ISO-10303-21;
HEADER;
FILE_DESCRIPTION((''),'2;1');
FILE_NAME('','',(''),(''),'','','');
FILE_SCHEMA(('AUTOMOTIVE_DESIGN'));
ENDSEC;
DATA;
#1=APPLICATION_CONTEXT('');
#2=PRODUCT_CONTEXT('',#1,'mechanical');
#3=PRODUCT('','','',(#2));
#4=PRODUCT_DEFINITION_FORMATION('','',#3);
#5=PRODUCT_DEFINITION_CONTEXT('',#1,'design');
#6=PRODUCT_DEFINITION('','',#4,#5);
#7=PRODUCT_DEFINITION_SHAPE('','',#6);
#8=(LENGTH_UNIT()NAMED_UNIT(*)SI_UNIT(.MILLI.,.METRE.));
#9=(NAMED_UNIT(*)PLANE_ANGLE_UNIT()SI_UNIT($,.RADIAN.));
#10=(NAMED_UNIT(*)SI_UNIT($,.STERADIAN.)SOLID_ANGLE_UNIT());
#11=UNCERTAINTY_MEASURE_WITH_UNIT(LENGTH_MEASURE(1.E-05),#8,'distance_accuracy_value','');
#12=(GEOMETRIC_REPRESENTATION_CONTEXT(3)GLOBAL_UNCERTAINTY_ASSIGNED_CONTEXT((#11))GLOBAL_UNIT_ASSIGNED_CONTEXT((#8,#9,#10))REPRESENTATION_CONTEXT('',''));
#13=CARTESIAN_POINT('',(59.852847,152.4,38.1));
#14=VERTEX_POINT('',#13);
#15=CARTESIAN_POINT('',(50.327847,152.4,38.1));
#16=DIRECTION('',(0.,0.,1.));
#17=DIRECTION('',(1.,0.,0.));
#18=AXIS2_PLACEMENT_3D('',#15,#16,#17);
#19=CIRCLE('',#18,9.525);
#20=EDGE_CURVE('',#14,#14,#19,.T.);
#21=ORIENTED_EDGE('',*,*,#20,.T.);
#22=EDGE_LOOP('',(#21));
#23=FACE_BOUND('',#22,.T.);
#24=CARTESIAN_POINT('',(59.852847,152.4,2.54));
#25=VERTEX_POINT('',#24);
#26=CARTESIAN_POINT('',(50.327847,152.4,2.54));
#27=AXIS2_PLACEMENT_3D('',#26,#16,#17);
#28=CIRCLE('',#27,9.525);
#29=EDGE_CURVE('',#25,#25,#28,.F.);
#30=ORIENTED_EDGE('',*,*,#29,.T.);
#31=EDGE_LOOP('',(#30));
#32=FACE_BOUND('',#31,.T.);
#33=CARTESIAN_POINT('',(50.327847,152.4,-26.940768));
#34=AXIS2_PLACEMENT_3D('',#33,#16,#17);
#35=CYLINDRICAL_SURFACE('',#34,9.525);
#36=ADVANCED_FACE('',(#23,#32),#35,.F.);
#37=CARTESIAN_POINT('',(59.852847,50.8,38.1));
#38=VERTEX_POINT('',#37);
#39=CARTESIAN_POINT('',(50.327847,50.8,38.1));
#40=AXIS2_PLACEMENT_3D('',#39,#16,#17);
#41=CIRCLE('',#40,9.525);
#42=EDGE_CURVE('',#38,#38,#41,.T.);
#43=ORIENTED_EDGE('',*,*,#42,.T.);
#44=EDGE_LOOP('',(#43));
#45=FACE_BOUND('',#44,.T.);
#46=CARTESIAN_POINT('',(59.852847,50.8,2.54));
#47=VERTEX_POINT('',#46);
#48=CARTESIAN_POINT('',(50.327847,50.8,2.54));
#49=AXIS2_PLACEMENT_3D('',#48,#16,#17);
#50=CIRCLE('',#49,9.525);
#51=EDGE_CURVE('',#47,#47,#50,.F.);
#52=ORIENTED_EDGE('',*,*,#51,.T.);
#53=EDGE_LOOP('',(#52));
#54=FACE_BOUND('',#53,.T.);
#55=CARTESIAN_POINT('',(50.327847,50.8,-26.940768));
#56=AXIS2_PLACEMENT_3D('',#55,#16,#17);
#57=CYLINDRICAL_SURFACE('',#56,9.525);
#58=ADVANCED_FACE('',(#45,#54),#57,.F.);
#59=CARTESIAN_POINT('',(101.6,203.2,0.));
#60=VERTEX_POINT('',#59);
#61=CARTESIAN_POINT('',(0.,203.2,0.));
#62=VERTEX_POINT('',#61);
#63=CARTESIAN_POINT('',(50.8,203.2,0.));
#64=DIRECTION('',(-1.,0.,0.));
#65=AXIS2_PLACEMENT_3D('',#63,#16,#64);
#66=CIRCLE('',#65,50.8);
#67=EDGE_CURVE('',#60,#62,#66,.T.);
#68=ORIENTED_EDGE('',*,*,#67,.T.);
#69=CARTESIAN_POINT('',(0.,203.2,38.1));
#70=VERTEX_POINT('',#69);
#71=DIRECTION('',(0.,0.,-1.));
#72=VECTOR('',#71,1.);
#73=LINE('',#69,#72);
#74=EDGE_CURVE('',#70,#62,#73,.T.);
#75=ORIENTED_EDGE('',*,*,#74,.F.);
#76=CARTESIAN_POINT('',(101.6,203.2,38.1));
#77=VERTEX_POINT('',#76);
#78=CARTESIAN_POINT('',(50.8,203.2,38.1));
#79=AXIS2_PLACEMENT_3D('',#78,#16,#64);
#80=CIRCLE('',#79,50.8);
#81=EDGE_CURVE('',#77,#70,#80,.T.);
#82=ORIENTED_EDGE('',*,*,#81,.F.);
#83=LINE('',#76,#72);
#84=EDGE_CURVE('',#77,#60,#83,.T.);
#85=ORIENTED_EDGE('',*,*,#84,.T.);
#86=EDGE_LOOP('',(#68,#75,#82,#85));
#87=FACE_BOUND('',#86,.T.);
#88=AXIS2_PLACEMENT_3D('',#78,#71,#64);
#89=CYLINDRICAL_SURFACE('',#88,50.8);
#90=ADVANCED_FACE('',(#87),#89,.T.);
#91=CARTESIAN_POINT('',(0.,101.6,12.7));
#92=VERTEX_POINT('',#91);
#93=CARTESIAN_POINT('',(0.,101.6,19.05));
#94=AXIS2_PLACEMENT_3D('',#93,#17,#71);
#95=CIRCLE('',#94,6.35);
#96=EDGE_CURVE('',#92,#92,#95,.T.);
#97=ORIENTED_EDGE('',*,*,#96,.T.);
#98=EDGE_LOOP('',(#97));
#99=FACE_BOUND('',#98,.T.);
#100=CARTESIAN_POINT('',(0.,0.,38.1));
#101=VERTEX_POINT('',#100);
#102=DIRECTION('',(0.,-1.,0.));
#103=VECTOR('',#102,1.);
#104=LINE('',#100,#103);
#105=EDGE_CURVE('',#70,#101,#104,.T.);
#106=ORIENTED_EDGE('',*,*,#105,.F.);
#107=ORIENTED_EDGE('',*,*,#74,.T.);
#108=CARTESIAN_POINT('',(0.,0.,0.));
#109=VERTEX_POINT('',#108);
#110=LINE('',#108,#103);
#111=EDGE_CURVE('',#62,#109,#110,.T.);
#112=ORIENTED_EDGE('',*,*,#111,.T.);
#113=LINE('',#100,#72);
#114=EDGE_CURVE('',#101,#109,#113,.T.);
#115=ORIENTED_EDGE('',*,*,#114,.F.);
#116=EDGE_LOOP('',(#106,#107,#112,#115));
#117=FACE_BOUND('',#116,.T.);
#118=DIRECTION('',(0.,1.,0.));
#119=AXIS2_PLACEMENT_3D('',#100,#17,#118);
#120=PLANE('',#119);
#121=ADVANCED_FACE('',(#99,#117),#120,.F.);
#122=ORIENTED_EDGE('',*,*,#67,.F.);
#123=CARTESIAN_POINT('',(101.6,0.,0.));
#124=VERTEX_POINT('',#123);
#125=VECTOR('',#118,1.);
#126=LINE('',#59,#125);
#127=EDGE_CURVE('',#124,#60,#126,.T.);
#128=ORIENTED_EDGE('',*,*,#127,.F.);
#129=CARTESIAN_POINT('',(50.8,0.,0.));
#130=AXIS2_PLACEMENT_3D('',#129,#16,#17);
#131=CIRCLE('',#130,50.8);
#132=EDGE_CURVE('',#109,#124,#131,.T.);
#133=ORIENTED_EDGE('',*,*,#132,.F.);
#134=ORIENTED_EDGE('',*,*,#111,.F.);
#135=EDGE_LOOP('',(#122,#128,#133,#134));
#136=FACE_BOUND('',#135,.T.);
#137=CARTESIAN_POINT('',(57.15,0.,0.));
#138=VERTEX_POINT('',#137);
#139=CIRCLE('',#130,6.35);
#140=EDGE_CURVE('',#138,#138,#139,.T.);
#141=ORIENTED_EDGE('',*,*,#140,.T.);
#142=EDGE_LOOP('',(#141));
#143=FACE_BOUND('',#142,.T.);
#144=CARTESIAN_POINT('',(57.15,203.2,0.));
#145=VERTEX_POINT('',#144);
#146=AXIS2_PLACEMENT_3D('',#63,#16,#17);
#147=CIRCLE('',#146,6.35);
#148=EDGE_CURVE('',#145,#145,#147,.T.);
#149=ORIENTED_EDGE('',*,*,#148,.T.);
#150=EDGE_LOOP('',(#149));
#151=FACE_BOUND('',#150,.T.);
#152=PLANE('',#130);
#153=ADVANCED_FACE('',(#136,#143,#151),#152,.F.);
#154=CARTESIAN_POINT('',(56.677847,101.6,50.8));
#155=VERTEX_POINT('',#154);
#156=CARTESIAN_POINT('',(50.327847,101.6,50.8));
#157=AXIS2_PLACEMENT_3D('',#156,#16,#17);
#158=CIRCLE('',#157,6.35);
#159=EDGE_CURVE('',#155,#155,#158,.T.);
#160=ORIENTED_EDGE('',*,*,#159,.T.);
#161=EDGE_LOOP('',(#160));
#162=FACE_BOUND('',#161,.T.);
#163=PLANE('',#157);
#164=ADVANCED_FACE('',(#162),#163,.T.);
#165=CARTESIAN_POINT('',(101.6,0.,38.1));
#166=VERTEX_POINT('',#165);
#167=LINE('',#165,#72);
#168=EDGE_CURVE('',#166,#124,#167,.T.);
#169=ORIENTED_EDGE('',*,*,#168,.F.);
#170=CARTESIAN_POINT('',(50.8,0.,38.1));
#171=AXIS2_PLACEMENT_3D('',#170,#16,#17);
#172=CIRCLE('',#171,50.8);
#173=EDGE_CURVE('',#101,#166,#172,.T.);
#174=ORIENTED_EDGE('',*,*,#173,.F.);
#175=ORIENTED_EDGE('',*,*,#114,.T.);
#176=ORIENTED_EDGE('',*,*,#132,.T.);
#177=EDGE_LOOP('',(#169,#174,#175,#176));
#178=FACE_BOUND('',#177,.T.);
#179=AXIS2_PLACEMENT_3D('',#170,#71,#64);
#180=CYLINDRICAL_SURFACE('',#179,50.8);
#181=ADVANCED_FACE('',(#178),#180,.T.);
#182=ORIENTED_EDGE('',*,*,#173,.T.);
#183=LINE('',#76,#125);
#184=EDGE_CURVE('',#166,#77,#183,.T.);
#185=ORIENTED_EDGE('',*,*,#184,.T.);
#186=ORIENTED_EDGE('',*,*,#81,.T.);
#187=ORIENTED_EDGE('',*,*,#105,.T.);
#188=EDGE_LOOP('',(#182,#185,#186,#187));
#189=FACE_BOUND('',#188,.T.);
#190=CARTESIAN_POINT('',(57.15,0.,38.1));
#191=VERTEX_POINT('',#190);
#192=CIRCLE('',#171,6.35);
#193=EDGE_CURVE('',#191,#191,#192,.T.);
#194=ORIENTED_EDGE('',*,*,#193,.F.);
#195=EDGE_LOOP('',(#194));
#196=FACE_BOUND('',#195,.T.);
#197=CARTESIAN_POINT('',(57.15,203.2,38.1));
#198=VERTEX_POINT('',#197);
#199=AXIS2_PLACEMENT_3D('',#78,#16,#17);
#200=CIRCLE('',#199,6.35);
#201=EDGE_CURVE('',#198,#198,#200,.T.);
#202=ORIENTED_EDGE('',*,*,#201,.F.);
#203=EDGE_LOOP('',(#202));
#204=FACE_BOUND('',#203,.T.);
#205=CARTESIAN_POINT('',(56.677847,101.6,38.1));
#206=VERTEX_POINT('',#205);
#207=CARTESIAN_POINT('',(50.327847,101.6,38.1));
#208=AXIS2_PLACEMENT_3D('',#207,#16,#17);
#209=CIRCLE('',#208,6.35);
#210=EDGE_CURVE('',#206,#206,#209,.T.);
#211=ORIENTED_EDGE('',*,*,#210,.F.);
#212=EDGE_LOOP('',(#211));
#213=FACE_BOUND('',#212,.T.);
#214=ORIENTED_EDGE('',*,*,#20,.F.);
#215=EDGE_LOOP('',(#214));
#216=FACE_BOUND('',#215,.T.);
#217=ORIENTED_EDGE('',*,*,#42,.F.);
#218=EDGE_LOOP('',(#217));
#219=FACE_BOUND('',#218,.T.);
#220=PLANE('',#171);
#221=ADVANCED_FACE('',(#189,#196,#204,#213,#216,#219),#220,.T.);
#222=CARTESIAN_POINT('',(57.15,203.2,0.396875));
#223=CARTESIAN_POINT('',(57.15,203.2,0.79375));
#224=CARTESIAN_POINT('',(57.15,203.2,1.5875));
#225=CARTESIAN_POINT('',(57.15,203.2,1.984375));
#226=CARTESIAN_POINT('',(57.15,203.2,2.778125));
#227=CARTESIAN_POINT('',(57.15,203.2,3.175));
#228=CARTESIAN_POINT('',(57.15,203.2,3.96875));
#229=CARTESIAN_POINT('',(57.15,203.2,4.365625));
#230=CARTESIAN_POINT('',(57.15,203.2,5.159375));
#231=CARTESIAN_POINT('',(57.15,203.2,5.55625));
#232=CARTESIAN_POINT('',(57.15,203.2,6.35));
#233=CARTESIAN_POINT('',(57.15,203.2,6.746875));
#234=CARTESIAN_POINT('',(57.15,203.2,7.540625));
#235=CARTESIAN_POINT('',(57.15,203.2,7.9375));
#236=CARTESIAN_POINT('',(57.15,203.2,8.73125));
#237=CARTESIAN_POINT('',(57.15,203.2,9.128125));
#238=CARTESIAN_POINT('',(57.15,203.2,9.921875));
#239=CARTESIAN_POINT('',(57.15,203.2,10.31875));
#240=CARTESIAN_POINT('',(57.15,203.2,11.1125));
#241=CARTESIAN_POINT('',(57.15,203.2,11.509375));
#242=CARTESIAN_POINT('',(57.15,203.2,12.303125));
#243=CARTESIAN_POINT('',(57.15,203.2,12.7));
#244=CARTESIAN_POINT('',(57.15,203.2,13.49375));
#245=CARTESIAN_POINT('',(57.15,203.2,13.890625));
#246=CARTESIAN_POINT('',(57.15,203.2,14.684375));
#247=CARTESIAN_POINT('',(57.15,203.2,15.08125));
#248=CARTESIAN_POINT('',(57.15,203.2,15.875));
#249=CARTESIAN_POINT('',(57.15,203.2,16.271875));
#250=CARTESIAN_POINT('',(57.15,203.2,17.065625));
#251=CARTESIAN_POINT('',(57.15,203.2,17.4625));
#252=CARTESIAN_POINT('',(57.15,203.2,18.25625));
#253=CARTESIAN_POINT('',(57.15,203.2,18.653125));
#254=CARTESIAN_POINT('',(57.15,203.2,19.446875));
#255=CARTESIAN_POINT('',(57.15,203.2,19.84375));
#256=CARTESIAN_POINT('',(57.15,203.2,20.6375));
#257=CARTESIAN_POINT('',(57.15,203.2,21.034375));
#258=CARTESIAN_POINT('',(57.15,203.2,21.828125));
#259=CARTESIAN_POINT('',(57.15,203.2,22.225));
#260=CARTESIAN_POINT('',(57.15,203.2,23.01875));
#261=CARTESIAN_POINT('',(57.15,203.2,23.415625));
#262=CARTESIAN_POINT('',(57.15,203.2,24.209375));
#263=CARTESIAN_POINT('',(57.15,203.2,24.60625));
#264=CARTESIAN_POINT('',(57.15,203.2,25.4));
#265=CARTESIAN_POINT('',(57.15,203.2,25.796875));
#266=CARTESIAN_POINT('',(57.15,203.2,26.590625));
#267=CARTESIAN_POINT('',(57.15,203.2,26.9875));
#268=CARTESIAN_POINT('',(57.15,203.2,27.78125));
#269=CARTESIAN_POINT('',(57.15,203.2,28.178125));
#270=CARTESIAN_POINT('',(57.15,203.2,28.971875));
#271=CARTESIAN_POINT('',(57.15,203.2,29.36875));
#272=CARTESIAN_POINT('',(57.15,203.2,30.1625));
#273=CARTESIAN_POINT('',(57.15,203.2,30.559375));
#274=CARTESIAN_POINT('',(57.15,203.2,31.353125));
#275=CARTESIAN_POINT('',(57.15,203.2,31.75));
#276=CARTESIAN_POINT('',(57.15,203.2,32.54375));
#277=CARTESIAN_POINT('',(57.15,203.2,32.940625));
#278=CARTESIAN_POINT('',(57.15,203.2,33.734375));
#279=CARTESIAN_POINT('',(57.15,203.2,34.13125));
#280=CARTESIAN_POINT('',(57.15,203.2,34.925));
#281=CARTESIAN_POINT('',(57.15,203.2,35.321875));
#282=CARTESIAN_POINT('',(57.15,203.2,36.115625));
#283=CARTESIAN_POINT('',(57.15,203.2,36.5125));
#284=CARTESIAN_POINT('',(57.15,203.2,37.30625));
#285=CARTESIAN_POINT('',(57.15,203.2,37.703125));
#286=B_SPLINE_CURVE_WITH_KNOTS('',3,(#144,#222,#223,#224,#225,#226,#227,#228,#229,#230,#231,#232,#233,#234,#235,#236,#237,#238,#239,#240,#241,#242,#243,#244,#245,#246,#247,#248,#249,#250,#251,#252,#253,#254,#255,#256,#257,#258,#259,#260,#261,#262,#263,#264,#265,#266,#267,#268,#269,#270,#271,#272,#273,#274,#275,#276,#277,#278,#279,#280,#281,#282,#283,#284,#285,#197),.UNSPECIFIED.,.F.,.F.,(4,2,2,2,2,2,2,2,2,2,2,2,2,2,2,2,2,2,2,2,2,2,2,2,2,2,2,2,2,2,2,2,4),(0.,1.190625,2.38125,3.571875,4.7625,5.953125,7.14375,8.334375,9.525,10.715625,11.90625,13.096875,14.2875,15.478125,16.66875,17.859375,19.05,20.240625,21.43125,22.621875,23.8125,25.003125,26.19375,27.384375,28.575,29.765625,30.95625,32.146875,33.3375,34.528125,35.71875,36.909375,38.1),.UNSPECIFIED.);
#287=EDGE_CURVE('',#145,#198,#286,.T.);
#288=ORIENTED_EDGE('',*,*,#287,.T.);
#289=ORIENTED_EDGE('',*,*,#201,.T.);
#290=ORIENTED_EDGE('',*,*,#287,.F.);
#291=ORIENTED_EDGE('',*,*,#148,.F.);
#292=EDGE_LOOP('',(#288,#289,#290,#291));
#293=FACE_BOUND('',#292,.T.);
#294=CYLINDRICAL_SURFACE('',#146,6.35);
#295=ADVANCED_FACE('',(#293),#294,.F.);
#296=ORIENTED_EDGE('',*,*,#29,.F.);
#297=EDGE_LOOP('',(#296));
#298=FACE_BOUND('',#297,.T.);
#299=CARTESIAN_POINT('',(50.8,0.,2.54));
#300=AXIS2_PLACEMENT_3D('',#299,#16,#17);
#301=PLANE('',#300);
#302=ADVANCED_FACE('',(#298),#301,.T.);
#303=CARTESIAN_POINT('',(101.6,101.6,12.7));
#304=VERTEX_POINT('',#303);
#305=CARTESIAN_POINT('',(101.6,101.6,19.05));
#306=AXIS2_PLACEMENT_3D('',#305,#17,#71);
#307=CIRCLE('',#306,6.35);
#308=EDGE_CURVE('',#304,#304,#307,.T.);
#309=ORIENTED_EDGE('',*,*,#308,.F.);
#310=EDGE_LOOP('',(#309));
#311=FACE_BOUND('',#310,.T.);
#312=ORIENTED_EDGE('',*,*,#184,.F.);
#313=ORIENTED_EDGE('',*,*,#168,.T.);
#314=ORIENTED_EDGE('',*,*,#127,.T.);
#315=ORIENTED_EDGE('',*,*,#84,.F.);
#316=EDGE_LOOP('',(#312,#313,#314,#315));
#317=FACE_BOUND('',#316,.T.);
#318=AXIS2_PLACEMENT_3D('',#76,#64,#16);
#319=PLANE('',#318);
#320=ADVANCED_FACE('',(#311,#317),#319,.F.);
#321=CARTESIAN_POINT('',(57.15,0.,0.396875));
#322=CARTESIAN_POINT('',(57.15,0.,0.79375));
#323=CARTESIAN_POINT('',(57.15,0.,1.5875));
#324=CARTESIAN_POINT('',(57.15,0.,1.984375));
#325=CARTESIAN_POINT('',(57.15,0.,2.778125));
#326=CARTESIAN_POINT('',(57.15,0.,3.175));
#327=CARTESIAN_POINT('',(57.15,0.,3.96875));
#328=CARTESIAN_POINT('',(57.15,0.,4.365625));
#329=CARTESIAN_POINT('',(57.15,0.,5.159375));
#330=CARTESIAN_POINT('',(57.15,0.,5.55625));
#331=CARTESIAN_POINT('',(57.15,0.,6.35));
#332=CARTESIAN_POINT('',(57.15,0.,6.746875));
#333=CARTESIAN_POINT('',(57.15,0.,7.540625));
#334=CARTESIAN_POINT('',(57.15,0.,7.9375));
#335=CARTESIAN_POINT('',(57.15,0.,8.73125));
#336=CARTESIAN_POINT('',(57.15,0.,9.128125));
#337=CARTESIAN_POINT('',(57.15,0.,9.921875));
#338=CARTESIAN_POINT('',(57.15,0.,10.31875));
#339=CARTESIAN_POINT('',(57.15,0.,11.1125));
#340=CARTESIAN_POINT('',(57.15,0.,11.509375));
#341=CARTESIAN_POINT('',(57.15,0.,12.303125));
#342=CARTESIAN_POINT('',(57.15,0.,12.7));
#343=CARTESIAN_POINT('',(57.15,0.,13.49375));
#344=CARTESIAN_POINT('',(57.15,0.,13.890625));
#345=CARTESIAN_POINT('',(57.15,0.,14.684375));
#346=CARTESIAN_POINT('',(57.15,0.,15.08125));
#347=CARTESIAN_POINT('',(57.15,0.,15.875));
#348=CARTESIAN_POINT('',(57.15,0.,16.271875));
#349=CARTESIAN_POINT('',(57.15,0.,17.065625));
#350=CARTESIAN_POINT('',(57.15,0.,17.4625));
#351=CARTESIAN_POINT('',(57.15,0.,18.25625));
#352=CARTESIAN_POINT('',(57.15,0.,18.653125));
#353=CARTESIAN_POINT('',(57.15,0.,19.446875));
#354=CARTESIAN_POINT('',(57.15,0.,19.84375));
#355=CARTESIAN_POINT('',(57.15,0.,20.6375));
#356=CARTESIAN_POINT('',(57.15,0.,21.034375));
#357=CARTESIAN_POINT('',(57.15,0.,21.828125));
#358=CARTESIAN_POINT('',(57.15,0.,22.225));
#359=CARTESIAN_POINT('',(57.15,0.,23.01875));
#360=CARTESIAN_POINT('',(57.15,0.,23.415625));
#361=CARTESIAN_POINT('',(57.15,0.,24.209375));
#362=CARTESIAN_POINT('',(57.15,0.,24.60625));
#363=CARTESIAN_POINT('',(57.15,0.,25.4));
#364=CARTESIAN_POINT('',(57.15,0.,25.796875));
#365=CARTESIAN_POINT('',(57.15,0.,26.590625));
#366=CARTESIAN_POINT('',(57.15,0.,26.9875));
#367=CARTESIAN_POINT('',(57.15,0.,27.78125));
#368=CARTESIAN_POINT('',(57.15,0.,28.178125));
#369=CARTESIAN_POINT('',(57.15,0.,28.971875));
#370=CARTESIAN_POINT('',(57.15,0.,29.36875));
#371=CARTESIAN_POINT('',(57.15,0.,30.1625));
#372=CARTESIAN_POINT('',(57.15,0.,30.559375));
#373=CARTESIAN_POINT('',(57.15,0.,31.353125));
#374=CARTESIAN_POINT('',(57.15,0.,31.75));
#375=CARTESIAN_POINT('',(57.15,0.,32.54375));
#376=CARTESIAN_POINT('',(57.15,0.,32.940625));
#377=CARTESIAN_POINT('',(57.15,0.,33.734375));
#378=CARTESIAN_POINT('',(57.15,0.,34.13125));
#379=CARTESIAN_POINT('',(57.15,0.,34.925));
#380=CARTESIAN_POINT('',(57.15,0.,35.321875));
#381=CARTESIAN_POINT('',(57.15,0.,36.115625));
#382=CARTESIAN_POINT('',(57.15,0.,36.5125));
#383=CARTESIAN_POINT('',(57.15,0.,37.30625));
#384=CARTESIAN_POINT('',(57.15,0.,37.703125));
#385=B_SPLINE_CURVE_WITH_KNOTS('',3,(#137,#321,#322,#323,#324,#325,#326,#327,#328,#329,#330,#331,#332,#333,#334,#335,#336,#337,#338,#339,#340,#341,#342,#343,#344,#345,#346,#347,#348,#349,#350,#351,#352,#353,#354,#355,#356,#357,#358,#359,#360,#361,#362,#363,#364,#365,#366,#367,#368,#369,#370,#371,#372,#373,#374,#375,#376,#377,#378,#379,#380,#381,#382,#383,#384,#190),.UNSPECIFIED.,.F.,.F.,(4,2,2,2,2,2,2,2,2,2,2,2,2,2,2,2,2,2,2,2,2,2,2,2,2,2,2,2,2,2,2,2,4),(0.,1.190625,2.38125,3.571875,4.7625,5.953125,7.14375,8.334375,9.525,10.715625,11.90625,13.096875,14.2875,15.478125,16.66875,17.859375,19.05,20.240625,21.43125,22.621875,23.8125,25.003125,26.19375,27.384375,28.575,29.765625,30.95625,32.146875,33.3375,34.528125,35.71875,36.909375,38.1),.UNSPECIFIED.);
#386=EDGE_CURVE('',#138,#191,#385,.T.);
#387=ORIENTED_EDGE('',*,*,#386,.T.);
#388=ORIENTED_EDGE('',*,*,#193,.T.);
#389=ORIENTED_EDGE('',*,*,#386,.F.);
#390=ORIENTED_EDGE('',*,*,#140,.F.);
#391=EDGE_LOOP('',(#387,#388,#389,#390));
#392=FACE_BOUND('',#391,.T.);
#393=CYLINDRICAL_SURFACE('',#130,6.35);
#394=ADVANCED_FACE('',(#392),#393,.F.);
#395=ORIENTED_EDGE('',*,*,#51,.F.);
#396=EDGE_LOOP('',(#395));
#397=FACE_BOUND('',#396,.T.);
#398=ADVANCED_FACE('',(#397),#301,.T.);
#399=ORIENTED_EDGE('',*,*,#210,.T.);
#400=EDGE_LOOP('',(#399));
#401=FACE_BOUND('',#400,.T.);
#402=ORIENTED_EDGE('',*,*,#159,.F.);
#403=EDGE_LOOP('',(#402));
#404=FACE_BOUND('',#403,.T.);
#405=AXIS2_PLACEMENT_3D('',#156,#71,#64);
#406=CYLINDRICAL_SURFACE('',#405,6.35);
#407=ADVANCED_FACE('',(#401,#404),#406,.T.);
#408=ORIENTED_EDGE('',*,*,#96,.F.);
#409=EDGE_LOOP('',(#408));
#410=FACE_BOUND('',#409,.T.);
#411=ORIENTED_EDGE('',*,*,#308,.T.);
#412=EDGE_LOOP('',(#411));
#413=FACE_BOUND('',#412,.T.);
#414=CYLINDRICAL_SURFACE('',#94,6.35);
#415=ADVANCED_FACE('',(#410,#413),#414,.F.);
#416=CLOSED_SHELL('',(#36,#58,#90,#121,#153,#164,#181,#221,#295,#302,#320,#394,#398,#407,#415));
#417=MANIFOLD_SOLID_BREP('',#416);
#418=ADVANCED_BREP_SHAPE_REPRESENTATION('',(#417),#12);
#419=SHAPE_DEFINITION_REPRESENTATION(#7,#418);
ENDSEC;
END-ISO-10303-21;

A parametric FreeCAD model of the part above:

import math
import FreeCAD as App
import Part
import Sketcher

V = App.Vector
Q = App.Units.Quantity

doc = App.newDocument("Part")
body = doc.addObject("PartDesign::Body", "Body")

# Sketch on XY plane
sketch1 = body.newObject("Sketcher::SketchObject", "Sketch")
sketch1.AttachmentSupport = (doc.getObject("XY_Plane"), [""])
sketch1.MapMode = "FlatFace"
sketch1.addGeometry(Part.LineSegment(V(0, 203, 0), V(0, 0, 0)), False)
sketch1.addGeometry(Part.ArcOfCircle(Part.Circle(V(51, 0, 0), V(0, 0, 1), 51), math.radians(180), math.radians(360)), False)
sketch1.addGeometry(Part.LineSegment(V(102, 0, 0), V(102, 203, 0)), False)
sketch1.addGeometry(Part.ArcOfCircle(Part.Circle(V(51, 203, 0), V(0, 0, 1), 51), math.radians(0), math.radians(180)), False)
sketch1.addConstraint(Sketcher.Constraint("Tangent", 0, 2, 1, 1))
sketch1.addConstraint(Sketcher.Constraint("Tangent", 1, 2, 2, 1))
sketch1.addConstraint(Sketcher.Constraint("Tangent", 2, 2, 3, 1))
sketch1.addConstraint(Sketcher.Constraint("Tangent", 3, 2, 0, 1))
sketch1.addConstraint(Sketcher.Constraint("Vertical", 0))
sketch1.addConstraint(Sketcher.Constraint("Vertical", 2))
sketch1.addConstraint(Sketcher.Constraint("Coincident", 0, 2, -1, 1))
sketch1.addConstraint(Sketcher.Constraint("Radius", 1, Q("2 in")))
sketch1.addConstraint(Sketcher.Constraint("DistanceY", 0, 2, 0, 1, Q("8 in")))
pad1 = body.newObject("PartDesign::Pad", "Pad")
pad1.Profile = sketch1
pad1.Length = Q("1.5 in")

# Sketch on XY plane
sketch2 = body.newObject("Sketcher::SketchObject", "Sketch001")
sketch2.AttachmentSupport = (doc.getObject("XY_Plane"), [""])
sketch2.MapMode = "FlatFace"
sketch2.AttachmentOffset = App.Placement(V(0, 0, 1.5 * 25.4), App.Rotation())
sketch2.addGeometry(Part.Circle(V(51, 203, 0), V(0, 0, 1), 6), False)
sketch2.addGeometry(Part.Circle(V(51, 0, 0), V(0, 0, 1), 6), False)
sketch2.addConstraint(Sketcher.Constraint("Equal", 0, 1))
sketch2.addConstraint(Sketcher.Constraint("PointOnObject", 1, 3, -1))
sketch2.addConstraint(Sketcher.Constraint("Vertical", 0, 3, 1, 3))
sketch2.addConstraint(Sketcher.Constraint("Diameter", 0, Q("0.5 in")))
sketch2.addConstraint(Sketcher.Constraint("DistanceX", -1, 1, 0, 3, Q("2 in")))
sketch2.addConstraint(Sketcher.Constraint("DistanceY", -1, 1, 0, 3, Q("8 in")))
pocket1 = body.newObject("PartDesign::Pocket", "Pocket")
pocket1.Profile = sketch2
pocket1.Type = "ThroughAll"

# Sketch on XY plane
sketch3 = body.newObject("Sketcher::SketchObject", "Sketch002")
sketch3.AttachmentSupport = (doc.getObject("XY_Plane"), [""])
sketch3.MapMode = "FlatFace"
sketch3.AttachmentOffset = App.Placement(V(0, 0, 1.5 * 25.4), App.Rotation())
sketch3.addGeometry(Part.Circle(V(50, 152, 0), V(0, 0, 1), 10), False)
sketch3.addGeometry(Part.Circle(V(50, 51, 0), V(0, 0, 1), 10), False)
sketch3.addConstraint(Sketcher.Constraint("Equal", 0, 1))
sketch3.addConstraint(Sketcher.Constraint("Vertical", 0, 3, 1, 3))
sketch3.addConstraint(Sketcher.Constraint("Diameter", 0, Q("0.75 in")))
sketch3.addConstraint(Sketcher.Constraint("DistanceY", -1, 1, 0, 3, Q("6 in")))
sketch3.addConstraint(Sketcher.Constraint("DistanceY", -1, 1, 1, 3, Q("2 in")))
sketch3.addConstraint(Sketcher.Constraint("DistanceX", -1, 1, 0, 3, 50.327847))
pocket2 = body.newObject("PartDesign::Pocket", "Pocket001")
pocket2.Profile = sketch3
pocket2.Length = Q("1.4 in")

# Sketch on XY plane
sketch4 = body.newObject("Sketcher::SketchObject", "Sketch003")
sketch4.AttachmentSupport = (doc.getObject("XY_Plane"), [""])
sketch4.MapMode = "FlatFace"
sketch4.AttachmentOffset = App.Placement(V(0, 0, 1.5 * 25.4), App.Rotation())
sketch4.addGeometry(Part.Circle(V(50, 102, 0), V(0, 0, 1), 6), False)
sketch4.addConstraint(Sketcher.Constraint("Diameter", 0, Q("0.5 in")))
sketch4.addConstraint(Sketcher.Constraint("DistanceY", -1, 1, 0, 3, Q("4 in")))
sketch4.addConstraint(Sketcher.Constraint("DistanceX", -1, 1, 0, 3, 50.327847))
pad2 = body.newObject("PartDesign::Pad", "Pad001")
pad2.Profile = sketch4
pad2.Length = Q("0.5 in")

# Sketch on YZ plane
sketch5 = body.newObject("Sketcher::SketchObject", "Sketch004")
sketch5.AttachmentSupport = (doc.getObject("YZ_Plane"), [""])
sketch5.MapMode = "FlatFace"
sketch5.AttachmentOffset = App.Placement(V(0, 0, 4 * 25.4), App.Rotation())
sketch5.addGeometry(Part.Circle(V(102, 19, 0), V(0, 0, 1), 6), False)
sketch5.addConstraint(Sketcher.Constraint("Diameter", 0, Q("0.5 in")))
sketch5.addConstraint(Sketcher.Constraint("DistanceX", -1, 1, 0, 3, Q("4 in")))
sketch5.addConstraint(Sketcher.Constraint("DistanceY", -1, 1, 0, 3, Q("0.75 in")))
pocket3 = body.newObject("PartDesign::Pocket", "Pocket002")
pocket3.Profile = sketch5
pocket3.Type = "ThroughAll"

doc.recompute()
